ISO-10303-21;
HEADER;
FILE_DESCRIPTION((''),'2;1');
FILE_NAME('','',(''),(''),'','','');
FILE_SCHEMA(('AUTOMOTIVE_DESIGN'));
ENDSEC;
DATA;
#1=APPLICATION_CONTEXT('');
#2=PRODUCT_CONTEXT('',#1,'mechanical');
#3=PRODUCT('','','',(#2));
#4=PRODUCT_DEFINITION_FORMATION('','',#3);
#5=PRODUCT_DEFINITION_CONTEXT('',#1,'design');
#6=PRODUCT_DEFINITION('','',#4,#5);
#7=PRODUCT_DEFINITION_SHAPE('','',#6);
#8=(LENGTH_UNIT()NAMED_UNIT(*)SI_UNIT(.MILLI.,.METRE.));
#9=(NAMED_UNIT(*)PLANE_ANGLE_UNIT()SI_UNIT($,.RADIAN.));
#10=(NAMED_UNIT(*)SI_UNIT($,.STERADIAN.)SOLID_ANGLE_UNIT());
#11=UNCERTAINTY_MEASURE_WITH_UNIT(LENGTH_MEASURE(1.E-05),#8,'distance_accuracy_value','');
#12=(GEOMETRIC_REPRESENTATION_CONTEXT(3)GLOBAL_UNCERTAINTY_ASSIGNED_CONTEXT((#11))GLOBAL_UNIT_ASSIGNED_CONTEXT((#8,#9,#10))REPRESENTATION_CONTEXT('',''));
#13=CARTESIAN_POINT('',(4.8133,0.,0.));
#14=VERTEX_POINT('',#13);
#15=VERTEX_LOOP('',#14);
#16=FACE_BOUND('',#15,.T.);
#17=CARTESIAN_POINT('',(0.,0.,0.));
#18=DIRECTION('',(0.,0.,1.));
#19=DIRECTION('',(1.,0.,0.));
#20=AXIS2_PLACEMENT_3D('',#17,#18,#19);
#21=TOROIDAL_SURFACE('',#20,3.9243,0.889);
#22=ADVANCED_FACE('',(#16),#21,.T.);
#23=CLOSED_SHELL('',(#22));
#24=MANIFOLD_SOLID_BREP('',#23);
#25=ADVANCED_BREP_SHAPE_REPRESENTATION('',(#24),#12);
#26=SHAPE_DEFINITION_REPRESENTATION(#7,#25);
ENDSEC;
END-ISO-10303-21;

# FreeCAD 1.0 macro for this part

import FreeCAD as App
import Part
import Sketcher

V = App.Vector
Q = App.Units.Quantity

doc = App.newDocument("Part")
body = doc.addObject("PartDesign::Body", "Body")

sketch1 = body.newObject("Sketcher::SketchObject", "Sketch")
sketch1.AttachmentSupport = (doc.getObject("YZ_Plane"), [""])
sketch1.MapMode = "FlatFace"
sketch1.addGeometry(Part.Circle(V(-3.9, 0, 0), V(0, 0, 1), 0.9), False)
sketch1.addConstraint([
    Sketcher.Constraint("PointOnObject", 0, 3, -1),
    Sketcher.Constraint("Diameter", 0, Q("0.07 in")),
    Sketcher.Constraint("DistanceX", 0, 3, -1, 1, Q("0.1545 in")),
])
revolution = body.newObject("PartDesign::Revolution", "Revolution")
revolution.Profile = sketch1
revolution.ReferenceAxis = (sketch1, ["V_Axis"])
revolution.Angle = 360

doc.recompute()
